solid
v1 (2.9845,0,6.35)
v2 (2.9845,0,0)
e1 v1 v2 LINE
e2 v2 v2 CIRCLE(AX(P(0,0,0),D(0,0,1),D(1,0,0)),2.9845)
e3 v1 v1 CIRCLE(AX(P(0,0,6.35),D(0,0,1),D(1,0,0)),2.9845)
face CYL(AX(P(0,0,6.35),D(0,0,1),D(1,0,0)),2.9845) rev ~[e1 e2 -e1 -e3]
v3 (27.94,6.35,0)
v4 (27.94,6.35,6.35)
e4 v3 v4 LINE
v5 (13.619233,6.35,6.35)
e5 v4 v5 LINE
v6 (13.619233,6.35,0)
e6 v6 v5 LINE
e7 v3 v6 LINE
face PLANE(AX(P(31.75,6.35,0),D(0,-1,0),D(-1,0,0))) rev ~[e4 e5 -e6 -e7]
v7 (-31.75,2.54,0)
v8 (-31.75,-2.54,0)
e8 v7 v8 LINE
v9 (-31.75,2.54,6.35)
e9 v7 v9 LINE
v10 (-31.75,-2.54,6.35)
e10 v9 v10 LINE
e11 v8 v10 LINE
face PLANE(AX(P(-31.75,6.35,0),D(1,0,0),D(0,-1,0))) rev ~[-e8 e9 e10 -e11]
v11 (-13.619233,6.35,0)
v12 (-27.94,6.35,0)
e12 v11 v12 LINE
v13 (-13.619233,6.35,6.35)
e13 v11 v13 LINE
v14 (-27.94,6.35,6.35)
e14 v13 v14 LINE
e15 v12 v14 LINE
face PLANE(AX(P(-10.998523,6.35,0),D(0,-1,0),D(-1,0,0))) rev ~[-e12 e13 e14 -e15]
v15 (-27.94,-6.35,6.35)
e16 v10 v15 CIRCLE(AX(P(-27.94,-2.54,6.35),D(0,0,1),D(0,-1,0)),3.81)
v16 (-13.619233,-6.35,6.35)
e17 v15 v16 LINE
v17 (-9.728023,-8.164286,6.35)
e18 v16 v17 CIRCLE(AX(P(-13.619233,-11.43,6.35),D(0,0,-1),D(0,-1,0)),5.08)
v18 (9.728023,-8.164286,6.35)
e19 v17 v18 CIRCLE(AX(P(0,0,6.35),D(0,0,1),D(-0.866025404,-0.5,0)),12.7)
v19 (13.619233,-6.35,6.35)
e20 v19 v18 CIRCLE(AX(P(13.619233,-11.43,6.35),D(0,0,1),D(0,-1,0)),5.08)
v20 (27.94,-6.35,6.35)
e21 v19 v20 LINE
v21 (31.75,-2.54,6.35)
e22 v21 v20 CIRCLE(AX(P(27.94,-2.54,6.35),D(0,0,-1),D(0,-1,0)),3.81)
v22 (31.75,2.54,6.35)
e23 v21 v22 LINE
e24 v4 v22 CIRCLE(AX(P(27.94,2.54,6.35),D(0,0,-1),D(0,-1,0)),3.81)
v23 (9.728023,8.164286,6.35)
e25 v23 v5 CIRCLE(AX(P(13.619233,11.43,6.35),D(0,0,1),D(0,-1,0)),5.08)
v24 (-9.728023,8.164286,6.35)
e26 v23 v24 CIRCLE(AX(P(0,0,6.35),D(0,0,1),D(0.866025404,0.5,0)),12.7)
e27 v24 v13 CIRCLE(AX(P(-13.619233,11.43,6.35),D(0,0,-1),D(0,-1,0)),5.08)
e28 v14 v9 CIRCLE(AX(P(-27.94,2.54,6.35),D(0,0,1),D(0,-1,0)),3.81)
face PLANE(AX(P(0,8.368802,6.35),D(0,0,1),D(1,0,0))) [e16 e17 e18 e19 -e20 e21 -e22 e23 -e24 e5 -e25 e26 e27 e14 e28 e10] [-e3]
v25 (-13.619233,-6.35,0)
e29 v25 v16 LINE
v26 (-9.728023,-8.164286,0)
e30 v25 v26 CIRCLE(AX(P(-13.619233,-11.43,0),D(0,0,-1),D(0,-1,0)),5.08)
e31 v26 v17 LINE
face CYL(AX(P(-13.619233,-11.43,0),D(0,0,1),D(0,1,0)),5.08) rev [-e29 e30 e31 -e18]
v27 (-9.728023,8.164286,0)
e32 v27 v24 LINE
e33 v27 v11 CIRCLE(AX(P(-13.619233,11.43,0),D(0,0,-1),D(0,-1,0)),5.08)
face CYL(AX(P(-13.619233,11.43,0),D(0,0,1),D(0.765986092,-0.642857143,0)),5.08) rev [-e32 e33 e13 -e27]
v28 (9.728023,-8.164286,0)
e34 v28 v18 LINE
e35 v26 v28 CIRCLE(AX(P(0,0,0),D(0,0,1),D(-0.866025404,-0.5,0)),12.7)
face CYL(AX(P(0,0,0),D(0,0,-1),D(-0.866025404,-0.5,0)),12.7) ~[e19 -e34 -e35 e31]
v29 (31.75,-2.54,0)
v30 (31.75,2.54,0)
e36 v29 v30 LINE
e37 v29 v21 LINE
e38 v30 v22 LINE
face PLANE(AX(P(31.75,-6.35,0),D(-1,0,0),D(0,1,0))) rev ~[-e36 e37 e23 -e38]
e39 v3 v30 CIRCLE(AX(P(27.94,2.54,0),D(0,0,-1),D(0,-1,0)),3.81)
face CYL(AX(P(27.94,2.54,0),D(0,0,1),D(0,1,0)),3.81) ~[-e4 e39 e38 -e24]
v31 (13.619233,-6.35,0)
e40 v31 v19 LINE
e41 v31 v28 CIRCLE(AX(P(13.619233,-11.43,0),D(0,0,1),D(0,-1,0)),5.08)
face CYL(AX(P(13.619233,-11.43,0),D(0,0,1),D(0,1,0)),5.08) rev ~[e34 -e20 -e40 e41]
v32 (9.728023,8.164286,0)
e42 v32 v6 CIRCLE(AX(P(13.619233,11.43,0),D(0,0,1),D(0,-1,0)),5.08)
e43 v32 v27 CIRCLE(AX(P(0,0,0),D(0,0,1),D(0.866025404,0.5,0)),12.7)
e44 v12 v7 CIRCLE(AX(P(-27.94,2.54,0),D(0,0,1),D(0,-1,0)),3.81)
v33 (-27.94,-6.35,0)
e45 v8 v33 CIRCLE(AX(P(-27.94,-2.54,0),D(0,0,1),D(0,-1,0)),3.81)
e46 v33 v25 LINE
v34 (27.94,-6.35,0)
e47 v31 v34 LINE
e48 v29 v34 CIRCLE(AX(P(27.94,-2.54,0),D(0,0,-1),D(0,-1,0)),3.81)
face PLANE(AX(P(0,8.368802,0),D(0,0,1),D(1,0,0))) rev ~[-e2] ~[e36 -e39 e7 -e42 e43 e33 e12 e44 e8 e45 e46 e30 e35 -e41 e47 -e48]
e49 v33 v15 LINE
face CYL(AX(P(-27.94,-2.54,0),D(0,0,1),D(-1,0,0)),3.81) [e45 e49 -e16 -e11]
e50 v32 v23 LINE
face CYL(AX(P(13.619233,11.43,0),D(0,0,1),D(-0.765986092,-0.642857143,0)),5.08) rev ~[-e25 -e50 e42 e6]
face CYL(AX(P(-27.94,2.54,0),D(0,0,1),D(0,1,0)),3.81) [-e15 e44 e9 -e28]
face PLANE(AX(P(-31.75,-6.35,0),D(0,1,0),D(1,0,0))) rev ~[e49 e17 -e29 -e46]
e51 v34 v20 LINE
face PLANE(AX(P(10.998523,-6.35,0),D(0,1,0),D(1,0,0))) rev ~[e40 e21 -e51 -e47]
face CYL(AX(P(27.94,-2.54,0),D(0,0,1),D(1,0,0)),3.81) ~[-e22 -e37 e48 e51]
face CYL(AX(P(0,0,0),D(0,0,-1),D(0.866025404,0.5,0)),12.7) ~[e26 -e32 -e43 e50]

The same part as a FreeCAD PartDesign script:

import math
import FreeCAD as App
import Part
import Sketcher

V = App.Vector
Q = App.Units.Quantity


def edges_at(feature, points):
    """Names of the edges that pass closest to the given points."""
    edges = feature.Shape.Edges
    near = lambda p: min(range(len(edges)), key=lambda i: edges[i].distToShape(Part.Vertex(*p))[0])
    return sorted({f"Edge{near(p) + 1}" for p in points})

doc = App.newDocument("Part")
params = doc.addObject("Spreadsheet::Sheet", "Params")
for row, (alias, value) in enumerate([
    ("sketch1_radius", "0.5 in"),
    ("sketch1_height", "0.5 in"),
    ("pad1_length", "0.25 in"),
    ("sketch2_diameter", "0.235 in"),
    ("pocket1_length", "0.25 in"),
    ("fillet_radius", "0.2 in"),
    ("fillet2_radius", "0.15 in"),
], start=1):
    params.set(f"A{row}", alias)
    params.set(f"B{row}", "=" + value)
    params.setAlias(f"B{row}", alias)

body = doc.addObject("PartDesign::Body", "Body")

sketch1 = doc.addObject("Sketcher::SketchObject", "Sketch")
body.addObject(sketch1)
sketch1.AttachmentSupport = (doc.XY_Plane, [""])
sketch1.MapMode = "FlatFace"
sketch1.addGeometry([
    Part.ArcOfCircle(Part.Circle(V(0, 0, 0), V(0, 0, 1), 12.7), math.radians(30), math.radians(150)),
    Part.LineSegment(V(-10.998523, 6.35, 0), V(-31.75, 6.35, 0)),
    Part.LineSegment(V(-31.75, 6.35, 0), V(-31.75, -6.35, 0)),
    Part.LineSegment(V(-31.75, -6.35, 0), V(-10.998523, -6.35, 0)),
    Part.ArcOfCircle(Part.Circle(V(0, 0, 0), V(0, 0, 1), 12.7), math.radians(-150), math.radians(-30)),
    Part.LineSegment(V(10.998523, -6.35, 0), V(31.75, -6.35, 0)),
    Part.LineSegment(V(31.75, -6.35, 0), V(31.75, 6.35, 0)),
    Part.LineSegment(V(31.75, 6.35, 0), V(10.998523, 6.35, 0)),
], False)
sketch1.addConstraint([
    Sketcher.Constraint("Coincident", 0, 2, 1, 1),
    Sketcher.Constraint("Coincident", 1, 2, 2, 1),
    Sketcher.Constraint("Coincident", 2, 2, 3, 1),
    Sketcher.Constraint("Coincident", 3, 2, 4, 1),
    Sketcher.Constraint("Coincident", 4, 2, 5, 1),
    Sketcher.Constraint("Coincident", 5, 2, 6, 1),
    Sketcher.Constraint("Coincident", 6, 2, 7, 1),
    Sketcher.Constraint("Coincident", 7, 2, 0, 1),
    Sketcher.Constraint("Horizontal", 1),
    Sketcher.Constraint("Vertical", 2),
    Sketcher.Constraint("Horizontal", 3),
    Sketcher.Constraint("Horizontal", 5),
    Sketcher.Constraint("Vertical", 6),
    Sketcher.Constraint("Horizontal", 7),
    Sketcher.Constraint("Coincident", 0, 3, -1, 1),
    Sketcher.Constraint("Coincident", 4, 3, -1, 1),
    Sketcher.Constraint("Equal", 0, 4),
    Sketcher.Constraint("Symmetric", 1, 2, 5, 2, -1, 1),
    Sketcher.Constraint("Horizontal", 3, 2, 4, 2),
    Sketcher.Constraint("Horizontal", 1, 2, 6, 2),
    Sketcher.Constraint("Radius", 0, Q("0.5 in")),
    Sketcher.Constraint("DistanceY", 2, 2, 2, 1, Q("0.5 in")),
    Sketcher.Constraint("DistanceX", 1, 2, -1, 1, Q("1.25 in")),
])
sketch1.setExpression("Constraints[20]", "Params.sketch1_radius")
sketch1.setExpression("Constraints[21]", "Params.sketch1_height")
pad1 = doc.addObject("PartDesign::Pad", "Pad")
body.addObject(pad1)
pad1.Profile = sketch1
pad1.setExpression("Length", "Params.pad1_length")

sketch2 = doc.addObject("Sketcher::SketchObject", "Sketch001")
body.addObject(sketch2)
sketch2.AttachmentSupport = (doc.XY_Plane, [""])
sketch2.MapMode = "FlatFace"
sketch2.AttachmentOffset = App.Placement(V(0, 0, 0.25 * 25.4), App.Rotation())
sketch2.addGeometry(Part.Circle(V(0, 0, 0), V(0, 0, 1), 2.9845), False)
sketch2.addConstraint([
    Sketcher.Constraint("Coincident", 0, 3, -1, 1),
    Sketcher.Constraint("Diameter", 0, Q("0.235 in")),
])
sketch2.setExpression("Constraints[1]", "Params.sketch2_diameter")
pocket1 = doc.addObject("PartDesign::Pocket", "Pocket")
body.addObject(pocket1)
pocket1.Profile = sketch2
pocket1.setExpression("Length", "Params.pocket1_length")
doc.recompute()

fillet = doc.addObject("PartDesign::Fillet", "Fillet")
body.addObject(fillet)
fillet.Base = (pocket1, edges_at(pocket1, [
    (-10.999, 6.35, 3.175),
    (10.999, -6.35, 3.175),
    (-10.999, -6.35, 3.175),
    (10.999, 6.35, 3.175),
]))
fillet.setExpression("Radius", "Params.fillet_radius")
doc.recompute()

fillet2 = doc.addObject("PartDesign::Fillet", "Fillet001")
body.addObject(fillet2)
fillet2.Base = (fillet, edges_at(fillet, [
    (-31.75, 6.35, 3.175),
    (-31.75, -6.35, 3.175),
    (31.75, -6.35, 3.175),
    (31.75, 6.35, 3.175),
]))
fillet2.setExpression("Radius", "Params.fillet2_radius")

doc.recompute()
